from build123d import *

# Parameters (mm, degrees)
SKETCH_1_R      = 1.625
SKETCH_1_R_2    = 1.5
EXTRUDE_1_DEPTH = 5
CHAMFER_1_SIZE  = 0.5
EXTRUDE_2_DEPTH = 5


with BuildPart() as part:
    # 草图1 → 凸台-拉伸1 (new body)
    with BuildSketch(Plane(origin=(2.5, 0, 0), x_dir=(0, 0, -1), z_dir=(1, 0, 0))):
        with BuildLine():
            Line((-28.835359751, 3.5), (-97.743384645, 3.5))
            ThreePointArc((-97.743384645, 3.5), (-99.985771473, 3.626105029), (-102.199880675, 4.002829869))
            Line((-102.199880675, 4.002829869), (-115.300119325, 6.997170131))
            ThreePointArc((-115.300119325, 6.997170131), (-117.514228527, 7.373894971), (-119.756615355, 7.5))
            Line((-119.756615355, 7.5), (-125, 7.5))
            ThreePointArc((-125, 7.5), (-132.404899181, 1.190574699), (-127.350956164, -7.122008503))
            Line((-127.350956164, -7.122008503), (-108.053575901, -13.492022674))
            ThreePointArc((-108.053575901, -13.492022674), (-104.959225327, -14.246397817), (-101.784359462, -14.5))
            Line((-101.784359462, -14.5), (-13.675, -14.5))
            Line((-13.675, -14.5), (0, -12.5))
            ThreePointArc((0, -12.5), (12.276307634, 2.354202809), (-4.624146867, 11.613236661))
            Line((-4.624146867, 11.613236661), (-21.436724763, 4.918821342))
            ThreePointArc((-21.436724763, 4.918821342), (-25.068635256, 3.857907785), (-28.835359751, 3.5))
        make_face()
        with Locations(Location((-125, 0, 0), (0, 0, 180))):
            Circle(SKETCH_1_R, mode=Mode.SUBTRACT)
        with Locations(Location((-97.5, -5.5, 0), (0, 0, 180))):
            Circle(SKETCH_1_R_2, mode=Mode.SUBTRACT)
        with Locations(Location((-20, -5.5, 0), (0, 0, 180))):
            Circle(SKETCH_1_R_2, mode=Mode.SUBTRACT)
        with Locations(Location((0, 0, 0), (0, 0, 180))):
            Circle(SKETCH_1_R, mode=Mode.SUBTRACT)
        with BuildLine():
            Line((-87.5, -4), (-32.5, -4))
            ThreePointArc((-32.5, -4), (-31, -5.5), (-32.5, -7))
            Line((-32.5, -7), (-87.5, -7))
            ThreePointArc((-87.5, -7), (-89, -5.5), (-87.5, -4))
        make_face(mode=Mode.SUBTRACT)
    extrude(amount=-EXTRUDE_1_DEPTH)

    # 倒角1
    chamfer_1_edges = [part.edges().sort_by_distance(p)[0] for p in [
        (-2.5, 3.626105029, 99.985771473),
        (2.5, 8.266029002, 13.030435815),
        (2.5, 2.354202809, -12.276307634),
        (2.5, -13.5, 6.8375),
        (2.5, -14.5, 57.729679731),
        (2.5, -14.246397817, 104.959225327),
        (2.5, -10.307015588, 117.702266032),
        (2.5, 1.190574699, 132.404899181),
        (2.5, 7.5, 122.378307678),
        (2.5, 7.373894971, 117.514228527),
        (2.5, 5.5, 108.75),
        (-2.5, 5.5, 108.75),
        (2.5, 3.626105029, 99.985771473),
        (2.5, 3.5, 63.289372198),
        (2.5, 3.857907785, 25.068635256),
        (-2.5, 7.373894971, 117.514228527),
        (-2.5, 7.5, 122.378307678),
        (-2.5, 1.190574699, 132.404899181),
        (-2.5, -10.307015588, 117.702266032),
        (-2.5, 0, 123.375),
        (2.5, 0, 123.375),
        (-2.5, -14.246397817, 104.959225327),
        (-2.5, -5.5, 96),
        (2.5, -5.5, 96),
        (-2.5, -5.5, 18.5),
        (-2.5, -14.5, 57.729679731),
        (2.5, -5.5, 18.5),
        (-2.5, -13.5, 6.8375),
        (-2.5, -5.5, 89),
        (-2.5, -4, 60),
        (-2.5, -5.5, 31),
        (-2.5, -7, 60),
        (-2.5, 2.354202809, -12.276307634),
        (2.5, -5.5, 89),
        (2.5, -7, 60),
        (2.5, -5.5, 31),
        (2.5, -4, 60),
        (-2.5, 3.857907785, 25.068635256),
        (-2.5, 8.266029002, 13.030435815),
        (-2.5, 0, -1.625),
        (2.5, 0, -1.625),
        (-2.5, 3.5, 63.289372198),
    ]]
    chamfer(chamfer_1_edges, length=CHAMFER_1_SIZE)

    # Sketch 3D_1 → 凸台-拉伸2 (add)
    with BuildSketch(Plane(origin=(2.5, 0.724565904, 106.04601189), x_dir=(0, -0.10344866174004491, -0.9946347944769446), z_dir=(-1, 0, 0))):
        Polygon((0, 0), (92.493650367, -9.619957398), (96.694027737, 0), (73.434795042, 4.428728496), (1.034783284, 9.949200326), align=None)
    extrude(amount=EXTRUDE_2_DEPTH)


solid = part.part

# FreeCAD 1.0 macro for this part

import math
import FreeCAD as App
import Part
import Sketcher

V = App.Vector


def edges_at(feature, points):
    """Names of the edges that pass closest to the given points."""
    edges = feature.Shape.Edges
    near = lambda p: min(range(len(edges)), key=lambda i: edges[i].distToShape(Part.Vertex(*p))[0])
    return sorted({f"Edge{near(p) + 1}" for p in points})

doc = App.newDocument("Part")
params = doc.addObject("Spreadsheet::Sheet", "Params")
for row, (alias, value) in enumerate([
    ("sketch1_diameter", "3 mm"),
    ("sketch1_radius", "20 mm"),
    ("sketch1_radius2", "7.5 mm"),
    ("sketch1_diameter2", "3.25 mm"),
    ("sketch1_height", "55 mm"),
    ("pad1_length", "5 mm"),
    ("chamfer_size", "0.5 mm"),
    ("pad2_length", "5 mm"),
], start=1):
    params.set(f"A{row}", alias)
    params.set(f"B{row}", "=" + value)
    params.setAlias(f"B{row}", alias)

body = doc.addObject("PartDesign::Body", "Body")

# Sketch on YZ plane
sketch1 = doc.addObject("Sketcher::SketchObject", "Sketch")
body.addObject(sketch1)
sketch1.AttachmentSupport = (doc.YZ_Plane, [""])
sketch1.MapMode = "FlatFace"
sketch1.AttachmentOffset = App.Placement(V(0, 0, 2.5), App.Rotation())
sketch1.addGeometry(Part.LineSegment(V(3.5, 28.8, 0), V(3.5, 97.7, 0)), False)
sketch1.addGeometry(Part.ArcOfCircle(Part.Circle(V(23.5, 97.7, 0), V(0, 0, 1), 20), math.radians(167.12), math.radians(180)), False)
sketch1.addGeometry(Part.LineSegment(V(4, 102.2, 0), V(7, 115.3, 0)), False)
sketch1.addGeometry(Part.ArcOfCircle(Part.Circle(V(-12.5, 119.8, 0), V(0, 0, 1), 20), math.radians(-12.88), math.radians(0)), False)
sketch1.addGeometry(Part.LineSegment(V(7.5, 119.8, 0), V(7.5, 125, 0)), False)
sketch1.addGeometry(Part.ArcOfCircle(Part.Circle(V(0, 125, 0), V(0, 0, 1), 7.5), math.radians(0), math.radians(162)), False)
sketch1.addGeometry(Part.LineSegment(V(-7.1, 127.4, 0), V(-13.5, 108.1, 0)), False)
sketch1.addGeometry(Part.ArcOfCircle(Part.Circle(V(5.5, 101.8, 0), V(0, 0, 1), 20), math.radians(161.73), math.radians(180)), False)
sketch1.addGeometry(Part.LineSegment(V(-14.5, 101.8, 0), V(-14.5, 13.7, 0)), False)
sketch1.addGeometry(Part.LineSegment(V(-14.5, 13.7, 0), V(-12.5, 0, 0)), False)
sketch1.addGeometry(Part.ArcOfCircle(Part.Circle(V(0, 0, 0), V(0, 0, 1), 12.5), math.radians(180), math.radians(382)), False)
sketch1.addGeometry(Part.LineSegment(V(11.6, 4.6, 0), V(4.9, 21.4, 0)), False)
sketch1.addGeometry(Part.ArcOfCircle(Part.Circle(V(23.5, 28.8, 0), V(0, 0, 1), 20), math.radians(180), math.radians(202)), False)
sketch1.addGeometry(Part.Circle(V(-5.5, 97.5, 0), V(0, 0, 1), 1.5), False)
sketch1.addGeometry(Part.ArcOfCircle(Part.Circle(V(-5.5, 87.5, 0), V(0, 0, 1), 1.5), math.radians(0), math.radians(180)), False)
sketch1.addGeometry(Part.LineSegment(V(-4, 87.5, 0), V(-4, 32.5, 0)), False)
sketch1.addGeometry(Part.ArcOfCircle(Part.Circle(V(-5.5, 32.5, 0), V(0, 0, 1), 1.5), math.radians(180), math.radians(360)), False)
sketch1.addGeometry(Part.LineSegment(V(-7, 32.5, 0), V(-7, 87.5, 0)), False)
sketch1.addGeometry(Part.Circle(V(-5.5, 20, 0), V(0, 0, 1), 1.5), False)
sketch1.addGeometry(Part.Circle(V(0, 125, 0), V(0, 0, 1), 1.6), False)
sketch1.addGeometry(Part.Circle(V(0, 0, 0), V(0, 0, 1), 1.6), False)
sketch1.addConstraint(Sketcher.Constraint("Tangent", 0, 2, 1, 2))
sketch1.addConstraint(Sketcher.Constraint("Tangent", 1, 1, 2, 1))
sketch1.addConstraint(Sketcher.Constraint("Tangent", 2, 2, 3, 1))
sketch1.addConstraint(Sketcher.Constraint("Tangent", 3, 2, 4, 1))
sketch1.addConstraint(Sketcher.Constraint("Tangent", 4, 2, 5, 1))
sketch1.addConstraint(Sketcher.Constraint("Tangent", 5, 2, 6, 1))
sketch1.addConstraint(Sketcher.Constraint("Tangent", 6, 2, 7, 1))
sketch1.addConstraint(Sketcher.Constraint("Tangent", 7, 2, 8, 1))
sketch1.addConstraint(Sketcher.Constraint("Coincident", 8, 2, 9, 1))
sketch1.addConstraint(Sketcher.Constraint("Coincident", 9, 2, 10, 1))
sketch1.addConstraint(Sketcher.Constraint("Tangent", 10, 2, 11, 1))
sketch1.addConstraint(Sketcher.Constraint("Tangent", 11, 2, 12, 2))
sketch1.addConstraint(Sketcher.Constraint("Tangent", 12, 1, 0, 1))
sketch1.addConstraint(Sketcher.Constraint("Tangent", 14, 1, 15, 1))
sketch1.addConstraint(Sketcher.Constraint("Tangent", 15, 2, 16, 2))
sketch1.addConstraint(Sketcher.Constraint("Tangent", 16, 1, 17, 1))
sketch1.addConstraint(Sketcher.Constraint("Tangent", 17, 2, 14, 2))
sketch1.addConstraint(Sketcher.Constraint("Vertical", 0))
sketch1.addConstraint(Sketcher.Constraint("Vertical", 4))
sketch1.addConstraint(Sketcher.Constraint("Vertical", 8))
sketch1.addConstraint(Sketcher.Constraint("Vertical", 15))
sketch1.addConstraint(Sketcher.Constraint("Vertical", 17))
sketch1.addConstraint(Sketcher.Constraint("Coincident", 10, 3, -1, 1))
sketch1.addConstraint(Sketcher.Constraint("Coincident", 20, 3, -1, 1))
sketch1.addConstraint(Sketcher.Constraint("Coincident", 19, 3, 5, 3))
sketch1.addConstraint(Sketcher.Constraint("Equal", 1, 3))
sketch1.addConstraint(Sketcher.Constraint("Equal", 3, 7))
sketch1.addConstraint(Sketcher.Constraint("Equal", 7, 12))
sketch1.addConstraint(Sketcher.Constraint("Equal", 13, 14))
sketch1.addConstraint(Sketcher.Constraint("Equal", 16, 18))
sketch1.addConstraint(Sketcher.Constraint("Equal", 19, 20))
sketch1.addConstraint(Sketcher.Constraint("PointOnObject", 5, 3, -2))
sketch1.addConstraint(Sketcher.Constraint("PointOnObject", 9, 2, -1))
sketch1.addConstraint(Sketcher.Constraint("Vertical", 13, 3, 14, 3))
sketch1.addConstraint(Sketcher.Constraint("Vertical", 16, 3, 18, 3))
sketch1.addConstraint(Sketcher.Constraint("Vertical", 3, 3, 9, 2))
sketch1.addConstraint(Sketcher.Constraint("Diameter", 13, 3.0))
sketch1.addConstraint(Sketcher.Constraint("Radius", 1, 20.0))
sketch1.addConstraint(Sketcher.Constraint("Radius", 5, 7.5))
sketch1.addConstraint(Sketcher.Constraint("Diameter", 19, 3.25))
sketch1.addConstraint(Sketcher.Constraint("DistanceY", 15, 2, 15, 1, 55.0))
sketch1.addConstraint(Sketcher.Constraint("DistanceY", -1, 1, 5, 3, 125.0))
sketch1.addConstraint(Sketcher.Constraint("DistanceY", -1, 1, 18, 3, 20.0))
sketch1.addConstraint(Sketcher.Constraint("DistanceX", 14, 1, -1, 1, 4.0))
sketch1.addConstraint(Sketcher.Constraint("DistanceX", 3, 3, 1, 3, 36.0))
sketch1.addConstraint(Sketcher.Constraint("DistanceX", 7, 3, 1, 3, 18.0))
sketch1.addConstraint(Sketcher.Constraint("DistanceY", 14, 3, 13, 3, 10.0))
sketch1.addConstraint(Sketcher.Constraint("DistanceY", -1, 1, 13, 3, 97.5))
sketch1.addConstraint(Sketcher.Constraint("DistanceY", -1, 1, 8, 2, 13.675))
sketch1.addConstraint(Sketcher.Constraint("DistanceY", 12, 3, 7, 3, 72.949))
sketch1.addConstraint(Sketcher.Constraint("DistanceY", 8, 2, 8, 1, 88.109359))
sketch1.addConstraint(Sketcher.Constraint("DistanceY", 0, 1, 0, 2, 68.908025))
sketch1.addConstraint(Sketcher.Constraint("DistanceY", 4, 1, 4, 2, 5.243385))
sketch1.setExpression("Constraints[36]", "Params.sketch1_diameter")
sketch1.setExpression("Constraints[37]", "Params.sketch1_radius")
sketch1.setExpression("Constraints[38]", "Params.sketch1_radius2")
sketch1.setExpression("Constraints[39]", "Params.sketch1_diameter2")
sketch1.setExpression("Constraints[40]", "Params.sketch1_height")
pad1 = doc.addObject("PartDesign::Pad", "Pad")
body.addObject(pad1)
pad1.Profile = sketch1
pad1.setExpression("Length", "Params.pad1_length")
pad1.Reversed = True
doc.recompute()

chamfer = doc.addObject("PartDesign::Chamfer", "Chamfer")
body.addObject(chamfer)
chamfer.Base = (pad1, edges_at(pad1, [
    (-2.5, 3.626, 99.986),
    (2.5, 8.266, 13.03),
    (2.5, 2.354, -12.276),
    (2.5, -13.5, 6.838),
    (2.5, -14.5, 57.73),
    (2.5, -14.246, 104.959),
    (2.5, -10.307, 117.702),
    (2.5, 1.191, 132.405),
    (2.5, 7.5, 122.378),
    (2.5, 7.374, 117.514),
    (2.5, 5.5, 108.75),
    (-2.5, 5.5, 108.75),
    (2.5, 3.626, 99.986),
    (2.5, 3.5, 63.289),
    (2.5, 3.858, 25.069),
    (-2.5, 7.374, 117.514),
    (-2.5, 7.5, 122.378),
    (-2.5, 1.191, 132.405),
    (-2.5, -10.307, 117.702),
    (-2.5, 0, 123.375),
    (2.5, 0, 123.375),
    (-2.5, -14.246, 104.959),
    (-2.5, -5.5, 96),
    (2.5, -5.5, 96),
    (-2.5, -5.5, 18.5),
    (-2.5, -14.5, 57.73),
    (2.5, -5.5, 18.5),
    (-2.5, -13.5, 6.838),
    (-2.5, -5.5, 89),
    (-2.5, -4, 60),
    (-2.5, -5.5, 31),
    (-2.5, -7, 60),
    (-2.5, 2.354, -12.276),
    (2.5, -5.5, 89),
    (2.5, -7, 60),
    (2.5, -5.5, 31),
    (2.5, -4, 60),
    (-2.5, 3.858, 25.069),
    (-2.5, 8.266, 13.03),
    (-2.5, 0, -1.625),
    (2.5, 0, -1.625),
    (-2.5, 3.5, 63.289),
]))
chamfer.setExpression("Size", "Params.chamfer_size")

# Sketch on YZ plane
sketch2 = doc.addObject("Sketcher::SketchObject", "Sketch001")
body.addObject(sketch2)
sketch2.AttachmentSupport = (doc.YZ_Plane, [""])
sketch2.MapMode = "FlatFace"
sketch2.AttachmentOffset = App.Placement(V(0, 0, 2.5), App.Rotation())
sketch2.addGeometry(Part.LineSegment(V(1, 106, 0), V(1, 13, 0)), False)
sketch2.addGeometry(Part.LineSegment(V(1, 13, 0), V(-9, 10, 0)), False)
sketch2.addGeometry(Part.LineSegment(V(-9, 10, 0), V(-11, 33, 0)), False)
sketch2.addGeometry(Part.LineSegment(V(-11, 33, 0), V(-9, 106, 0)), False)
sketch2.addGeometry(Part.LineSegment(V(-9, 106, 0), V(1, 106, 0)), False)
sketch2.addConstraint(Sketcher.Constraint("Coincident", 0, 2, 1, 1))
sketch2.addConstraint(Sketcher.Constraint("Coincident", 1, 2, 2, 1))
sketch2.addConstraint(Sketcher.Constraint("Coincident", 2, 2, 3, 1))
sketch2.addConstraint(Sketcher.Constraint("Coincident", 3, 2, 4, 1))
sketch2.addConstraint(Sketcher.Constraint("Coincident", 4, 2, 0, 1))
sketch2.addConstraint(Sketcher.Constraint("Vertical", 0))
sketch2.addConstraint(Sketcher.Constraint("Horizontal", 4))
sketch2.addConstraint(Sketcher.Constraint("Vertical", 1, 2, 3, 2))
sketch2.addConstraint(Sketcher.Constraint("DistanceX", 1, 2, -1, 1, 9.278302))
sketch2.addConstraint(Sketcher.Constraint("DistanceX", 2, 2, 0, 2, 12.001699))
sketch2.addConstraint(Sketcher.Constraint("Distance", 2, 23.67711))
sketch2.addConstraint(Sketcher.Constraint("DistanceX", 4, 1, 4, 2, 10.002868))
sketch2.addConstraint(Sketcher.Constraint("DistanceY", 0, 2, 0, 1, 92.992575))
sketch2.addConstraint(Sketcher.Constraint("DistanceY", -1, 1, 3, 2, 106.046012))
sketch2.addConstraint(Sketcher.Constraint("DistanceY", 1, 2, 0, 2, 3.18267))
pad2 = doc.addObject("PartDesign::Pad", "Pad001")
body.addObject(pad2)
pad2.Profile = sketch2
pad2.setExpression("Length", "Params.pad2_length")
pad2.Reversed = True

doc.recompute()
